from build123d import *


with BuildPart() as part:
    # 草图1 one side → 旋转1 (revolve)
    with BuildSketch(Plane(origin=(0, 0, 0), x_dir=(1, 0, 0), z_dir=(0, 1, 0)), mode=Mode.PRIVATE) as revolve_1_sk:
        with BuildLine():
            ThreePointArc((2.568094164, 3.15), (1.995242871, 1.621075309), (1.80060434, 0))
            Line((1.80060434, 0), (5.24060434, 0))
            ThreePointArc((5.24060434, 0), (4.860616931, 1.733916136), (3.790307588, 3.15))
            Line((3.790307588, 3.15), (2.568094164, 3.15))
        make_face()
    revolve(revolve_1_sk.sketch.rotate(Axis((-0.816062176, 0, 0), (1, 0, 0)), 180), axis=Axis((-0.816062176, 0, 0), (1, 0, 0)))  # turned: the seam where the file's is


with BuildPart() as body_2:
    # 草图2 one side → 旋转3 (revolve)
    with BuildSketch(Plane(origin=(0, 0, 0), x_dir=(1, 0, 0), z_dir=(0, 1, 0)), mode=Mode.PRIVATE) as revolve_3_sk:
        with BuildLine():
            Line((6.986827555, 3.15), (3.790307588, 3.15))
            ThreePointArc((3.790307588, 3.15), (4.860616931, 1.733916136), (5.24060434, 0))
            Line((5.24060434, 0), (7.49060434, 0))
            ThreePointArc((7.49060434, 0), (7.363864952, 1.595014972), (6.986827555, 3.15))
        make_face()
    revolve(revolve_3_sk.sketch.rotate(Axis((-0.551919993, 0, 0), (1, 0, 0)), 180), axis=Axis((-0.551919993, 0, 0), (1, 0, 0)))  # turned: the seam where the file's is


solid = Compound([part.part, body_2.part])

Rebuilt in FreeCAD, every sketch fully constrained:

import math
import FreeCAD as App
import Part
import Sketcher
from FreeCAD import Vector

doc = App.newDocument("Part")
params = doc.addObject("Spreadsheet::Sheet", "Params")
for row, (alias, value) in enumerate([
    ("sketch1_width", "3.44 mm"),
    ("revolution_angle", "360 deg"),
    ("sketch2_radius", "10.1 mm"),
    ("sketch2_width", "2.25 mm"),
    ("revolution2_angle", "360 deg"),
], start=1):
    params.set(f"A{row}", alias)
    params.set(f"B{row}", "=" + value)
    params.setAlias(f"B{row}", alias)

body = doc.addObject("PartDesign::Body", "Body")

sketch1 = body.newObject("Sketcher::SketchObject", "Sketch")
sketch1.AttachmentSupport = (doc.getObject("XZ_Plane"), [""])
sketch1.MapMode = "FlatFace"
sketch1.addGeometry([
    Part.ArcOfCircle(Part.Circle(Vector(8.6, 0, 0), Vector(0, 0, 1), 6.8), math.radians(-180), math.radians(-153)),
    Part.LineSegment(Vector(1.8, 0, 0), Vector(5.2, 0, 0)),
    Part.ArcOfCircle(Part.Circle(Vector(1.1, 0, 0), Vector(0, 0, 1), 4.1), math.radians(-49), math.radians(0)),
    Part.LineSegment(Vector(3.8, -3.1, 0), Vector(2.6, -3.1, 0)),
], False)
sketch1.addConstraint([
    Sketcher.Constraint("Coincident", 0, 1, 1, 1),
    Sketcher.Constraint("Coincident", 1, 2, 2, 2),
    Sketcher.Constraint("Coincident", 2, 1, 3, 1),
    Sketcher.Constraint("Coincident", 3, 2, 0, 2),
    Sketcher.Constraint("Horizontal", 1),
    Sketcher.Constraint("Horizontal", 3),
    Sketcher.Constraint("PointOnObject", 0, 3, -1),
    Sketcher.Constraint("PointOnObject", 2, 3, -1),
    Sketcher.Constraint("PointOnObject", 0, 1, -1),
    Sketcher.Constraint("Radius", 0, 6.848),
    Sketcher.Constraint("Radius", 2, 4.146),
    Sketcher.Constraint("DistanceX", 1, 1, 1, 2, 3.44),
    Sketcher.Constraint("DistanceY", 2, 1, -1, 1, 3.15),
    Sketcher.Constraint("DistanceX", -1, 1, 0, 3, 8.648604),
])
sketch1.setExpression("Constraints[11]", "Params.sketch1_width")
revolution = body.newObject("PartDesign::Revolution", "Revolution")
revolution.Profile = sketch1
revolution.ReferenceAxis = (sketch1, ["H_Axis"])
revolution.setExpression("Angle", "Params.revolution_angle")
body2 = doc.addObject("PartDesign::Body", "Body001")

sketch2 = body2.newObject("Sketcher::SketchObject", "Sketch001")
sketch2.AttachmentSupport = (doc.getObject("XZ_Plane001"), [""])
sketch2.MapMode = "FlatFace"
sketch2.addGeometry([
    Part.LineSegment(Vector(7, -3.1, 0), Vector(3.8, -3.1, 0)),
    Part.ArcOfCircle(Part.Circle(Vector(1.1, 0, 0), Vector(0, 0, 1), 4.1), math.radians(-49), math.radians(0)),
    Part.LineSegment(Vector(5.2, 0, 0), Vector(7.5, 0, 0)),
    Part.ArcOfCircle(Part.Circle(Vector(-2.6, 0, 0), Vector(0, 0, 1), 10.1), math.radians(-18.17), math.radians(0)),
], False)
sketch2.addConstraint([
    Sketcher.Constraint("Coincident", 0, 2, 1, 1),
    Sketcher.Constraint("Coincident", 1, 2, 2, 1),
    Sketcher.Constraint("Coincident", 2, 2, 3, 2),
    Sketcher.Constraint("Coincident", 3, 1, 0, 1),
    Sketcher.Constraint("Horizontal", 0),
    Sketcher.Constraint("Horizontal", 2),
    Sketcher.Constraint("PointOnObject", 1, 3, -1),
    Sketcher.Constraint("PointOnObject", 3, 3, -1),
    Sketcher.Constraint("PointOnObject", 1, 2, -1),
    Sketcher.Constraint("Radius", 3, 10.1),
    Sketcher.Constraint("Radius", 1, 4.146),
    Sketcher.Constraint("DistanceX", 2, 1, 2, 2, 2.25),
    Sketcher.Constraint("DistanceY", 0, 2, -1, 1, 3.15),
    Sketcher.Constraint("DistanceX", -1, 1, 1, 3, 1.094604),
])
sketch2.setExpression("Constraints[9]", "Params.sketch2_radius")
sketch2.setExpression("Constraints[11]", "Params.sketch2_width")
revolution2 = body2.newObject("PartDesign::Revolution", "Revolution001")
revolution2.Profile = sketch2
revolution2.ReferenceAxis = (sketch2, ["H_Axis"])
revolution2.setExpression("Angle", "Params.revolution2_angle")

doc.recompute()
